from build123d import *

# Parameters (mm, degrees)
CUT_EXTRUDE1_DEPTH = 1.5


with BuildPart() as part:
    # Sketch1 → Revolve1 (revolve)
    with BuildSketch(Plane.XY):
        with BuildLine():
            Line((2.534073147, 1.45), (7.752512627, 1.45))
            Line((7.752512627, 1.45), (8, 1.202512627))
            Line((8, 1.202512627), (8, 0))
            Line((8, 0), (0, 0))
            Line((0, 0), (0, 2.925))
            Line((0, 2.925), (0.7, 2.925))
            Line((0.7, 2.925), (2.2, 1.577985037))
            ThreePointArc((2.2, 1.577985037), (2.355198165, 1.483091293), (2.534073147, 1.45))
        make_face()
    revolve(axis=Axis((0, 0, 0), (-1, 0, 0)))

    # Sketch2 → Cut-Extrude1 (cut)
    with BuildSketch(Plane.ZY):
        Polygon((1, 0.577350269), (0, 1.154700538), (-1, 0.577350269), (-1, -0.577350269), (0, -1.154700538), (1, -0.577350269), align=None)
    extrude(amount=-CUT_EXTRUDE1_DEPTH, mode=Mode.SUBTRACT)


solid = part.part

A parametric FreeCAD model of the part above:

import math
import FreeCAD as App
import Part
import Sketcher
Q = App.Units.Quantity

doc = App.newDocument("Part")
body = doc.addObject("PartDesign::Body", "Body")

sketch1 = body.newObject("Sketcher::SketchObject", "Sketch")
sketch1.AttachmentSupport = (doc.getObject("XY_Plane"), [""])
sketch1.MapMode = "FlatFace"
sketch1.addGeometry([
    Part.LineSegment(App.Vector(7.75, 1.45, 0), App.Vector(2.53, 1.45, 0)),
    Part.ArcOfCircle(Part.Circle(App.Vector(2.53, 1.95, 0), App.Vector(0, 0, 1), 0.5), math.radians(-132), math.radians(-90)),
    Part.LineSegment(App.Vector(2.2, 1.58, 0), App.Vector(0.7, 2.92, 0)),
    Part.LineSegment(App.Vector(0.7, 2.92, 0), App.Vector(0, 2.92, 0)),
    Part.LineSegment(App.Vector(0, 2.92, 0), App.Vector(0, 0, 0)),
    Part.LineSegment(App.Vector(0, 0, 0), App.Vector(8, 0, 0)),
    Part.LineSegment(App.Vector(8, 0, 0), App.Vector(8, 1.2, 0)),
    Part.LineSegment(App.Vector(8, 1.2, 0), App.Vector(7.75, 1.45, 0)),
], False)
sketch1.addConstraint([
    Sketcher.Constraint("Tangent", 0, 2, 1, 2),
    Sketcher.Constraint("Tangent", 1, 1, 2, 1),
    Sketcher.Constraint("Coincident", 2, 2, 3, 1),
    Sketcher.Constraint("Coincident", 3, 2, 4, 1),
    Sketcher.Constraint("Coincident", 4, 2, 5, 1),
    Sketcher.Constraint("Coincident", 5, 2, 6, 1),
    Sketcher.Constraint("Coincident", 6, 2, 7, 1),
    Sketcher.Constraint("Coincident", 7, 2, 0, 1),
    Sketcher.Constraint("Horizontal", 0),
    Sketcher.Constraint("Horizontal", 3),
    Sketcher.Constraint("Vertical", 4),
    Sketcher.Constraint("Horizontal", 5),
    Sketcher.Constraint("Vertical", 6),
    Sketcher.Constraint("Coincident", 4, 2, -1, 1),
    Sketcher.Constraint("Radius", 1, 0.5),
    Sketcher.Constraint("DistanceX", 5, 1, 5, 2, 8.0),
    Sketcher.Constraint("Angle", 7, Q("135 deg")),
    Sketcher.Constraint("DistanceX", 3, 2, 3, 1, 0.7),
    Sketcher.Constraint("DistanceX", -1, 1, 1, 1, 2.2),
    Sketcher.Constraint("Distance", 7, 0.35),
    Sketcher.Constraint("DistanceY", 4, 2, 4, 1, 2.925),
    Sketcher.Constraint("DistanceY", -1, 1, 1, 3, 1.95),
])
revolution = body.newObject("PartDesign::Revolution", "Revolution")
revolution.Profile = sketch1
revolution.ReferenceAxis = (sketch1, ["H_Axis"])
revolution.Angle = 360

sketch2 = body.newObject("Sketcher::SketchObject", "Sketch001")
sketch2.AttachmentSupport = (doc.getObject("YZ_Plane"), [""])
sketch2.MapMode = "FlatFace"
sketch2.addGeometry([
    Part.LineSegment(App.Vector(0.6, 1, 0), App.Vector(1.2, 0, 0)),
    Part.LineSegment(App.Vector(1.2, 0, 0), App.Vector(0.6, -1, 0)),
    Part.LineSegment(App.Vector(0.6, -1, 0), App.Vector(-0.6, -1, 0)),
    Part.LineSegment(App.Vector(-0.6, -1, 0), App.Vector(-1.2, 0, 0)),
    Part.LineSegment(App.Vector(-1.2, 0, 0), App.Vector(-0.6, 1, 0)),
    Part.LineSegment(App.Vector(-0.6, 1, 0), App.Vector(0.6, 1, 0)),
], False)
sketch2.addConstraint([
    Sketcher.Constraint("Coincident", 0, 2, 1, 1),
    Sketcher.Constraint("Coincident", 1, 2, 2, 1),
    Sketcher.Constraint("Coincident", 2, 2, 3, 1),
    Sketcher.Constraint("Coincident", 3, 2, 4, 1),
    Sketcher.Constraint("Coincident", 4, 2, 5, 1),
    Sketcher.Constraint("Coincident", 5, 2, 0, 1),
    Sketcher.Constraint("Horizontal", 2),
    Sketcher.Constraint("Horizontal", 5),
    Sketcher.Constraint("Symmetric", 0, 2, 3, 2, -1, 1),
    Sketcher.Constraint("Symmetric", 1, 2, 4, 2, -1, 1),
    Sketcher.Constraint("PointOnObject", 0, 2, -1),
    Sketcher.Constraint("Parallel", 0, 3),
    Sketcher.Constraint("Vertical", 2, 2, 4, 2),
    Sketcher.Constraint("Angle", 0, Q("-60 deg")),
    Sketcher.Constraint("DistanceY", 1, 2, -1, 1, 1.0),
    Sketcher.Constraint("DistanceX", 2, 2, 2, 1, 1.154701),
])
pocket1 = body.newObject("PartDesign::Pocket", "Pocket")
pocket1.Profile = sketch2
pocket1.Length = 1.5
pocket1.Reversed = True

doc.recompute()
